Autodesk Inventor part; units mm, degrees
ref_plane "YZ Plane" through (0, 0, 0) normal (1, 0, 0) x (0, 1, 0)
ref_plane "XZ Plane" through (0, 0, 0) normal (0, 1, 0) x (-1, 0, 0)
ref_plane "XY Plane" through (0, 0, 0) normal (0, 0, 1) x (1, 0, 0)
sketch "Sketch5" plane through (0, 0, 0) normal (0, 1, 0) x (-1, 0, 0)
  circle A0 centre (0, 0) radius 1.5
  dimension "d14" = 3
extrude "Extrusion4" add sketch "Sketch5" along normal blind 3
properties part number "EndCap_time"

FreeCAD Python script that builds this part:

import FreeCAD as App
import Part
import Sketcher

V = App.Vector

doc = App.newDocument("Part")
params = doc.addObject("Spreadsheet::Sheet", "Params")
for row, (alias, value) in enumerate([
    ("sketch1_diameter", "3 mm"),
    ("pad1_length", "3 mm"),
], start=1):
    params.set(f"A{row}", alias)
    params.set(f"B{row}", "=" + value)
    params.setAlias(f"B{row}", alias)

body = doc.addObject("PartDesign::Body", "Body")

# Sketch on XZ plane
sketch1 = body.newObject("Sketcher::SketchObject", "Sketch")
sketch1.AttachmentSupport = (doc.getObject("XZ_Plane"), [""])
sketch1.MapMode = "FlatFace"
sketch1.addGeometry(Part.Circle(V(0, 0, 0), V(0, 0, 1), 1.5), False)
sketch1.addConstraint([
    Sketcher.Constraint("Coincident", 0, 3, -1, 1),
    Sketcher.Constraint("Diameter", 0, 3.0),
])
sketch1.setExpression("Constraints[1]", "Params.sketch1_diameter")
pad1 = body.newObject("PartDesign::Pad", "Pad")
pad1.Profile = sketch1
pad1.setExpression("Length", "Params.pad1_length")
pad1.Reversed = True

doc.recompute()
